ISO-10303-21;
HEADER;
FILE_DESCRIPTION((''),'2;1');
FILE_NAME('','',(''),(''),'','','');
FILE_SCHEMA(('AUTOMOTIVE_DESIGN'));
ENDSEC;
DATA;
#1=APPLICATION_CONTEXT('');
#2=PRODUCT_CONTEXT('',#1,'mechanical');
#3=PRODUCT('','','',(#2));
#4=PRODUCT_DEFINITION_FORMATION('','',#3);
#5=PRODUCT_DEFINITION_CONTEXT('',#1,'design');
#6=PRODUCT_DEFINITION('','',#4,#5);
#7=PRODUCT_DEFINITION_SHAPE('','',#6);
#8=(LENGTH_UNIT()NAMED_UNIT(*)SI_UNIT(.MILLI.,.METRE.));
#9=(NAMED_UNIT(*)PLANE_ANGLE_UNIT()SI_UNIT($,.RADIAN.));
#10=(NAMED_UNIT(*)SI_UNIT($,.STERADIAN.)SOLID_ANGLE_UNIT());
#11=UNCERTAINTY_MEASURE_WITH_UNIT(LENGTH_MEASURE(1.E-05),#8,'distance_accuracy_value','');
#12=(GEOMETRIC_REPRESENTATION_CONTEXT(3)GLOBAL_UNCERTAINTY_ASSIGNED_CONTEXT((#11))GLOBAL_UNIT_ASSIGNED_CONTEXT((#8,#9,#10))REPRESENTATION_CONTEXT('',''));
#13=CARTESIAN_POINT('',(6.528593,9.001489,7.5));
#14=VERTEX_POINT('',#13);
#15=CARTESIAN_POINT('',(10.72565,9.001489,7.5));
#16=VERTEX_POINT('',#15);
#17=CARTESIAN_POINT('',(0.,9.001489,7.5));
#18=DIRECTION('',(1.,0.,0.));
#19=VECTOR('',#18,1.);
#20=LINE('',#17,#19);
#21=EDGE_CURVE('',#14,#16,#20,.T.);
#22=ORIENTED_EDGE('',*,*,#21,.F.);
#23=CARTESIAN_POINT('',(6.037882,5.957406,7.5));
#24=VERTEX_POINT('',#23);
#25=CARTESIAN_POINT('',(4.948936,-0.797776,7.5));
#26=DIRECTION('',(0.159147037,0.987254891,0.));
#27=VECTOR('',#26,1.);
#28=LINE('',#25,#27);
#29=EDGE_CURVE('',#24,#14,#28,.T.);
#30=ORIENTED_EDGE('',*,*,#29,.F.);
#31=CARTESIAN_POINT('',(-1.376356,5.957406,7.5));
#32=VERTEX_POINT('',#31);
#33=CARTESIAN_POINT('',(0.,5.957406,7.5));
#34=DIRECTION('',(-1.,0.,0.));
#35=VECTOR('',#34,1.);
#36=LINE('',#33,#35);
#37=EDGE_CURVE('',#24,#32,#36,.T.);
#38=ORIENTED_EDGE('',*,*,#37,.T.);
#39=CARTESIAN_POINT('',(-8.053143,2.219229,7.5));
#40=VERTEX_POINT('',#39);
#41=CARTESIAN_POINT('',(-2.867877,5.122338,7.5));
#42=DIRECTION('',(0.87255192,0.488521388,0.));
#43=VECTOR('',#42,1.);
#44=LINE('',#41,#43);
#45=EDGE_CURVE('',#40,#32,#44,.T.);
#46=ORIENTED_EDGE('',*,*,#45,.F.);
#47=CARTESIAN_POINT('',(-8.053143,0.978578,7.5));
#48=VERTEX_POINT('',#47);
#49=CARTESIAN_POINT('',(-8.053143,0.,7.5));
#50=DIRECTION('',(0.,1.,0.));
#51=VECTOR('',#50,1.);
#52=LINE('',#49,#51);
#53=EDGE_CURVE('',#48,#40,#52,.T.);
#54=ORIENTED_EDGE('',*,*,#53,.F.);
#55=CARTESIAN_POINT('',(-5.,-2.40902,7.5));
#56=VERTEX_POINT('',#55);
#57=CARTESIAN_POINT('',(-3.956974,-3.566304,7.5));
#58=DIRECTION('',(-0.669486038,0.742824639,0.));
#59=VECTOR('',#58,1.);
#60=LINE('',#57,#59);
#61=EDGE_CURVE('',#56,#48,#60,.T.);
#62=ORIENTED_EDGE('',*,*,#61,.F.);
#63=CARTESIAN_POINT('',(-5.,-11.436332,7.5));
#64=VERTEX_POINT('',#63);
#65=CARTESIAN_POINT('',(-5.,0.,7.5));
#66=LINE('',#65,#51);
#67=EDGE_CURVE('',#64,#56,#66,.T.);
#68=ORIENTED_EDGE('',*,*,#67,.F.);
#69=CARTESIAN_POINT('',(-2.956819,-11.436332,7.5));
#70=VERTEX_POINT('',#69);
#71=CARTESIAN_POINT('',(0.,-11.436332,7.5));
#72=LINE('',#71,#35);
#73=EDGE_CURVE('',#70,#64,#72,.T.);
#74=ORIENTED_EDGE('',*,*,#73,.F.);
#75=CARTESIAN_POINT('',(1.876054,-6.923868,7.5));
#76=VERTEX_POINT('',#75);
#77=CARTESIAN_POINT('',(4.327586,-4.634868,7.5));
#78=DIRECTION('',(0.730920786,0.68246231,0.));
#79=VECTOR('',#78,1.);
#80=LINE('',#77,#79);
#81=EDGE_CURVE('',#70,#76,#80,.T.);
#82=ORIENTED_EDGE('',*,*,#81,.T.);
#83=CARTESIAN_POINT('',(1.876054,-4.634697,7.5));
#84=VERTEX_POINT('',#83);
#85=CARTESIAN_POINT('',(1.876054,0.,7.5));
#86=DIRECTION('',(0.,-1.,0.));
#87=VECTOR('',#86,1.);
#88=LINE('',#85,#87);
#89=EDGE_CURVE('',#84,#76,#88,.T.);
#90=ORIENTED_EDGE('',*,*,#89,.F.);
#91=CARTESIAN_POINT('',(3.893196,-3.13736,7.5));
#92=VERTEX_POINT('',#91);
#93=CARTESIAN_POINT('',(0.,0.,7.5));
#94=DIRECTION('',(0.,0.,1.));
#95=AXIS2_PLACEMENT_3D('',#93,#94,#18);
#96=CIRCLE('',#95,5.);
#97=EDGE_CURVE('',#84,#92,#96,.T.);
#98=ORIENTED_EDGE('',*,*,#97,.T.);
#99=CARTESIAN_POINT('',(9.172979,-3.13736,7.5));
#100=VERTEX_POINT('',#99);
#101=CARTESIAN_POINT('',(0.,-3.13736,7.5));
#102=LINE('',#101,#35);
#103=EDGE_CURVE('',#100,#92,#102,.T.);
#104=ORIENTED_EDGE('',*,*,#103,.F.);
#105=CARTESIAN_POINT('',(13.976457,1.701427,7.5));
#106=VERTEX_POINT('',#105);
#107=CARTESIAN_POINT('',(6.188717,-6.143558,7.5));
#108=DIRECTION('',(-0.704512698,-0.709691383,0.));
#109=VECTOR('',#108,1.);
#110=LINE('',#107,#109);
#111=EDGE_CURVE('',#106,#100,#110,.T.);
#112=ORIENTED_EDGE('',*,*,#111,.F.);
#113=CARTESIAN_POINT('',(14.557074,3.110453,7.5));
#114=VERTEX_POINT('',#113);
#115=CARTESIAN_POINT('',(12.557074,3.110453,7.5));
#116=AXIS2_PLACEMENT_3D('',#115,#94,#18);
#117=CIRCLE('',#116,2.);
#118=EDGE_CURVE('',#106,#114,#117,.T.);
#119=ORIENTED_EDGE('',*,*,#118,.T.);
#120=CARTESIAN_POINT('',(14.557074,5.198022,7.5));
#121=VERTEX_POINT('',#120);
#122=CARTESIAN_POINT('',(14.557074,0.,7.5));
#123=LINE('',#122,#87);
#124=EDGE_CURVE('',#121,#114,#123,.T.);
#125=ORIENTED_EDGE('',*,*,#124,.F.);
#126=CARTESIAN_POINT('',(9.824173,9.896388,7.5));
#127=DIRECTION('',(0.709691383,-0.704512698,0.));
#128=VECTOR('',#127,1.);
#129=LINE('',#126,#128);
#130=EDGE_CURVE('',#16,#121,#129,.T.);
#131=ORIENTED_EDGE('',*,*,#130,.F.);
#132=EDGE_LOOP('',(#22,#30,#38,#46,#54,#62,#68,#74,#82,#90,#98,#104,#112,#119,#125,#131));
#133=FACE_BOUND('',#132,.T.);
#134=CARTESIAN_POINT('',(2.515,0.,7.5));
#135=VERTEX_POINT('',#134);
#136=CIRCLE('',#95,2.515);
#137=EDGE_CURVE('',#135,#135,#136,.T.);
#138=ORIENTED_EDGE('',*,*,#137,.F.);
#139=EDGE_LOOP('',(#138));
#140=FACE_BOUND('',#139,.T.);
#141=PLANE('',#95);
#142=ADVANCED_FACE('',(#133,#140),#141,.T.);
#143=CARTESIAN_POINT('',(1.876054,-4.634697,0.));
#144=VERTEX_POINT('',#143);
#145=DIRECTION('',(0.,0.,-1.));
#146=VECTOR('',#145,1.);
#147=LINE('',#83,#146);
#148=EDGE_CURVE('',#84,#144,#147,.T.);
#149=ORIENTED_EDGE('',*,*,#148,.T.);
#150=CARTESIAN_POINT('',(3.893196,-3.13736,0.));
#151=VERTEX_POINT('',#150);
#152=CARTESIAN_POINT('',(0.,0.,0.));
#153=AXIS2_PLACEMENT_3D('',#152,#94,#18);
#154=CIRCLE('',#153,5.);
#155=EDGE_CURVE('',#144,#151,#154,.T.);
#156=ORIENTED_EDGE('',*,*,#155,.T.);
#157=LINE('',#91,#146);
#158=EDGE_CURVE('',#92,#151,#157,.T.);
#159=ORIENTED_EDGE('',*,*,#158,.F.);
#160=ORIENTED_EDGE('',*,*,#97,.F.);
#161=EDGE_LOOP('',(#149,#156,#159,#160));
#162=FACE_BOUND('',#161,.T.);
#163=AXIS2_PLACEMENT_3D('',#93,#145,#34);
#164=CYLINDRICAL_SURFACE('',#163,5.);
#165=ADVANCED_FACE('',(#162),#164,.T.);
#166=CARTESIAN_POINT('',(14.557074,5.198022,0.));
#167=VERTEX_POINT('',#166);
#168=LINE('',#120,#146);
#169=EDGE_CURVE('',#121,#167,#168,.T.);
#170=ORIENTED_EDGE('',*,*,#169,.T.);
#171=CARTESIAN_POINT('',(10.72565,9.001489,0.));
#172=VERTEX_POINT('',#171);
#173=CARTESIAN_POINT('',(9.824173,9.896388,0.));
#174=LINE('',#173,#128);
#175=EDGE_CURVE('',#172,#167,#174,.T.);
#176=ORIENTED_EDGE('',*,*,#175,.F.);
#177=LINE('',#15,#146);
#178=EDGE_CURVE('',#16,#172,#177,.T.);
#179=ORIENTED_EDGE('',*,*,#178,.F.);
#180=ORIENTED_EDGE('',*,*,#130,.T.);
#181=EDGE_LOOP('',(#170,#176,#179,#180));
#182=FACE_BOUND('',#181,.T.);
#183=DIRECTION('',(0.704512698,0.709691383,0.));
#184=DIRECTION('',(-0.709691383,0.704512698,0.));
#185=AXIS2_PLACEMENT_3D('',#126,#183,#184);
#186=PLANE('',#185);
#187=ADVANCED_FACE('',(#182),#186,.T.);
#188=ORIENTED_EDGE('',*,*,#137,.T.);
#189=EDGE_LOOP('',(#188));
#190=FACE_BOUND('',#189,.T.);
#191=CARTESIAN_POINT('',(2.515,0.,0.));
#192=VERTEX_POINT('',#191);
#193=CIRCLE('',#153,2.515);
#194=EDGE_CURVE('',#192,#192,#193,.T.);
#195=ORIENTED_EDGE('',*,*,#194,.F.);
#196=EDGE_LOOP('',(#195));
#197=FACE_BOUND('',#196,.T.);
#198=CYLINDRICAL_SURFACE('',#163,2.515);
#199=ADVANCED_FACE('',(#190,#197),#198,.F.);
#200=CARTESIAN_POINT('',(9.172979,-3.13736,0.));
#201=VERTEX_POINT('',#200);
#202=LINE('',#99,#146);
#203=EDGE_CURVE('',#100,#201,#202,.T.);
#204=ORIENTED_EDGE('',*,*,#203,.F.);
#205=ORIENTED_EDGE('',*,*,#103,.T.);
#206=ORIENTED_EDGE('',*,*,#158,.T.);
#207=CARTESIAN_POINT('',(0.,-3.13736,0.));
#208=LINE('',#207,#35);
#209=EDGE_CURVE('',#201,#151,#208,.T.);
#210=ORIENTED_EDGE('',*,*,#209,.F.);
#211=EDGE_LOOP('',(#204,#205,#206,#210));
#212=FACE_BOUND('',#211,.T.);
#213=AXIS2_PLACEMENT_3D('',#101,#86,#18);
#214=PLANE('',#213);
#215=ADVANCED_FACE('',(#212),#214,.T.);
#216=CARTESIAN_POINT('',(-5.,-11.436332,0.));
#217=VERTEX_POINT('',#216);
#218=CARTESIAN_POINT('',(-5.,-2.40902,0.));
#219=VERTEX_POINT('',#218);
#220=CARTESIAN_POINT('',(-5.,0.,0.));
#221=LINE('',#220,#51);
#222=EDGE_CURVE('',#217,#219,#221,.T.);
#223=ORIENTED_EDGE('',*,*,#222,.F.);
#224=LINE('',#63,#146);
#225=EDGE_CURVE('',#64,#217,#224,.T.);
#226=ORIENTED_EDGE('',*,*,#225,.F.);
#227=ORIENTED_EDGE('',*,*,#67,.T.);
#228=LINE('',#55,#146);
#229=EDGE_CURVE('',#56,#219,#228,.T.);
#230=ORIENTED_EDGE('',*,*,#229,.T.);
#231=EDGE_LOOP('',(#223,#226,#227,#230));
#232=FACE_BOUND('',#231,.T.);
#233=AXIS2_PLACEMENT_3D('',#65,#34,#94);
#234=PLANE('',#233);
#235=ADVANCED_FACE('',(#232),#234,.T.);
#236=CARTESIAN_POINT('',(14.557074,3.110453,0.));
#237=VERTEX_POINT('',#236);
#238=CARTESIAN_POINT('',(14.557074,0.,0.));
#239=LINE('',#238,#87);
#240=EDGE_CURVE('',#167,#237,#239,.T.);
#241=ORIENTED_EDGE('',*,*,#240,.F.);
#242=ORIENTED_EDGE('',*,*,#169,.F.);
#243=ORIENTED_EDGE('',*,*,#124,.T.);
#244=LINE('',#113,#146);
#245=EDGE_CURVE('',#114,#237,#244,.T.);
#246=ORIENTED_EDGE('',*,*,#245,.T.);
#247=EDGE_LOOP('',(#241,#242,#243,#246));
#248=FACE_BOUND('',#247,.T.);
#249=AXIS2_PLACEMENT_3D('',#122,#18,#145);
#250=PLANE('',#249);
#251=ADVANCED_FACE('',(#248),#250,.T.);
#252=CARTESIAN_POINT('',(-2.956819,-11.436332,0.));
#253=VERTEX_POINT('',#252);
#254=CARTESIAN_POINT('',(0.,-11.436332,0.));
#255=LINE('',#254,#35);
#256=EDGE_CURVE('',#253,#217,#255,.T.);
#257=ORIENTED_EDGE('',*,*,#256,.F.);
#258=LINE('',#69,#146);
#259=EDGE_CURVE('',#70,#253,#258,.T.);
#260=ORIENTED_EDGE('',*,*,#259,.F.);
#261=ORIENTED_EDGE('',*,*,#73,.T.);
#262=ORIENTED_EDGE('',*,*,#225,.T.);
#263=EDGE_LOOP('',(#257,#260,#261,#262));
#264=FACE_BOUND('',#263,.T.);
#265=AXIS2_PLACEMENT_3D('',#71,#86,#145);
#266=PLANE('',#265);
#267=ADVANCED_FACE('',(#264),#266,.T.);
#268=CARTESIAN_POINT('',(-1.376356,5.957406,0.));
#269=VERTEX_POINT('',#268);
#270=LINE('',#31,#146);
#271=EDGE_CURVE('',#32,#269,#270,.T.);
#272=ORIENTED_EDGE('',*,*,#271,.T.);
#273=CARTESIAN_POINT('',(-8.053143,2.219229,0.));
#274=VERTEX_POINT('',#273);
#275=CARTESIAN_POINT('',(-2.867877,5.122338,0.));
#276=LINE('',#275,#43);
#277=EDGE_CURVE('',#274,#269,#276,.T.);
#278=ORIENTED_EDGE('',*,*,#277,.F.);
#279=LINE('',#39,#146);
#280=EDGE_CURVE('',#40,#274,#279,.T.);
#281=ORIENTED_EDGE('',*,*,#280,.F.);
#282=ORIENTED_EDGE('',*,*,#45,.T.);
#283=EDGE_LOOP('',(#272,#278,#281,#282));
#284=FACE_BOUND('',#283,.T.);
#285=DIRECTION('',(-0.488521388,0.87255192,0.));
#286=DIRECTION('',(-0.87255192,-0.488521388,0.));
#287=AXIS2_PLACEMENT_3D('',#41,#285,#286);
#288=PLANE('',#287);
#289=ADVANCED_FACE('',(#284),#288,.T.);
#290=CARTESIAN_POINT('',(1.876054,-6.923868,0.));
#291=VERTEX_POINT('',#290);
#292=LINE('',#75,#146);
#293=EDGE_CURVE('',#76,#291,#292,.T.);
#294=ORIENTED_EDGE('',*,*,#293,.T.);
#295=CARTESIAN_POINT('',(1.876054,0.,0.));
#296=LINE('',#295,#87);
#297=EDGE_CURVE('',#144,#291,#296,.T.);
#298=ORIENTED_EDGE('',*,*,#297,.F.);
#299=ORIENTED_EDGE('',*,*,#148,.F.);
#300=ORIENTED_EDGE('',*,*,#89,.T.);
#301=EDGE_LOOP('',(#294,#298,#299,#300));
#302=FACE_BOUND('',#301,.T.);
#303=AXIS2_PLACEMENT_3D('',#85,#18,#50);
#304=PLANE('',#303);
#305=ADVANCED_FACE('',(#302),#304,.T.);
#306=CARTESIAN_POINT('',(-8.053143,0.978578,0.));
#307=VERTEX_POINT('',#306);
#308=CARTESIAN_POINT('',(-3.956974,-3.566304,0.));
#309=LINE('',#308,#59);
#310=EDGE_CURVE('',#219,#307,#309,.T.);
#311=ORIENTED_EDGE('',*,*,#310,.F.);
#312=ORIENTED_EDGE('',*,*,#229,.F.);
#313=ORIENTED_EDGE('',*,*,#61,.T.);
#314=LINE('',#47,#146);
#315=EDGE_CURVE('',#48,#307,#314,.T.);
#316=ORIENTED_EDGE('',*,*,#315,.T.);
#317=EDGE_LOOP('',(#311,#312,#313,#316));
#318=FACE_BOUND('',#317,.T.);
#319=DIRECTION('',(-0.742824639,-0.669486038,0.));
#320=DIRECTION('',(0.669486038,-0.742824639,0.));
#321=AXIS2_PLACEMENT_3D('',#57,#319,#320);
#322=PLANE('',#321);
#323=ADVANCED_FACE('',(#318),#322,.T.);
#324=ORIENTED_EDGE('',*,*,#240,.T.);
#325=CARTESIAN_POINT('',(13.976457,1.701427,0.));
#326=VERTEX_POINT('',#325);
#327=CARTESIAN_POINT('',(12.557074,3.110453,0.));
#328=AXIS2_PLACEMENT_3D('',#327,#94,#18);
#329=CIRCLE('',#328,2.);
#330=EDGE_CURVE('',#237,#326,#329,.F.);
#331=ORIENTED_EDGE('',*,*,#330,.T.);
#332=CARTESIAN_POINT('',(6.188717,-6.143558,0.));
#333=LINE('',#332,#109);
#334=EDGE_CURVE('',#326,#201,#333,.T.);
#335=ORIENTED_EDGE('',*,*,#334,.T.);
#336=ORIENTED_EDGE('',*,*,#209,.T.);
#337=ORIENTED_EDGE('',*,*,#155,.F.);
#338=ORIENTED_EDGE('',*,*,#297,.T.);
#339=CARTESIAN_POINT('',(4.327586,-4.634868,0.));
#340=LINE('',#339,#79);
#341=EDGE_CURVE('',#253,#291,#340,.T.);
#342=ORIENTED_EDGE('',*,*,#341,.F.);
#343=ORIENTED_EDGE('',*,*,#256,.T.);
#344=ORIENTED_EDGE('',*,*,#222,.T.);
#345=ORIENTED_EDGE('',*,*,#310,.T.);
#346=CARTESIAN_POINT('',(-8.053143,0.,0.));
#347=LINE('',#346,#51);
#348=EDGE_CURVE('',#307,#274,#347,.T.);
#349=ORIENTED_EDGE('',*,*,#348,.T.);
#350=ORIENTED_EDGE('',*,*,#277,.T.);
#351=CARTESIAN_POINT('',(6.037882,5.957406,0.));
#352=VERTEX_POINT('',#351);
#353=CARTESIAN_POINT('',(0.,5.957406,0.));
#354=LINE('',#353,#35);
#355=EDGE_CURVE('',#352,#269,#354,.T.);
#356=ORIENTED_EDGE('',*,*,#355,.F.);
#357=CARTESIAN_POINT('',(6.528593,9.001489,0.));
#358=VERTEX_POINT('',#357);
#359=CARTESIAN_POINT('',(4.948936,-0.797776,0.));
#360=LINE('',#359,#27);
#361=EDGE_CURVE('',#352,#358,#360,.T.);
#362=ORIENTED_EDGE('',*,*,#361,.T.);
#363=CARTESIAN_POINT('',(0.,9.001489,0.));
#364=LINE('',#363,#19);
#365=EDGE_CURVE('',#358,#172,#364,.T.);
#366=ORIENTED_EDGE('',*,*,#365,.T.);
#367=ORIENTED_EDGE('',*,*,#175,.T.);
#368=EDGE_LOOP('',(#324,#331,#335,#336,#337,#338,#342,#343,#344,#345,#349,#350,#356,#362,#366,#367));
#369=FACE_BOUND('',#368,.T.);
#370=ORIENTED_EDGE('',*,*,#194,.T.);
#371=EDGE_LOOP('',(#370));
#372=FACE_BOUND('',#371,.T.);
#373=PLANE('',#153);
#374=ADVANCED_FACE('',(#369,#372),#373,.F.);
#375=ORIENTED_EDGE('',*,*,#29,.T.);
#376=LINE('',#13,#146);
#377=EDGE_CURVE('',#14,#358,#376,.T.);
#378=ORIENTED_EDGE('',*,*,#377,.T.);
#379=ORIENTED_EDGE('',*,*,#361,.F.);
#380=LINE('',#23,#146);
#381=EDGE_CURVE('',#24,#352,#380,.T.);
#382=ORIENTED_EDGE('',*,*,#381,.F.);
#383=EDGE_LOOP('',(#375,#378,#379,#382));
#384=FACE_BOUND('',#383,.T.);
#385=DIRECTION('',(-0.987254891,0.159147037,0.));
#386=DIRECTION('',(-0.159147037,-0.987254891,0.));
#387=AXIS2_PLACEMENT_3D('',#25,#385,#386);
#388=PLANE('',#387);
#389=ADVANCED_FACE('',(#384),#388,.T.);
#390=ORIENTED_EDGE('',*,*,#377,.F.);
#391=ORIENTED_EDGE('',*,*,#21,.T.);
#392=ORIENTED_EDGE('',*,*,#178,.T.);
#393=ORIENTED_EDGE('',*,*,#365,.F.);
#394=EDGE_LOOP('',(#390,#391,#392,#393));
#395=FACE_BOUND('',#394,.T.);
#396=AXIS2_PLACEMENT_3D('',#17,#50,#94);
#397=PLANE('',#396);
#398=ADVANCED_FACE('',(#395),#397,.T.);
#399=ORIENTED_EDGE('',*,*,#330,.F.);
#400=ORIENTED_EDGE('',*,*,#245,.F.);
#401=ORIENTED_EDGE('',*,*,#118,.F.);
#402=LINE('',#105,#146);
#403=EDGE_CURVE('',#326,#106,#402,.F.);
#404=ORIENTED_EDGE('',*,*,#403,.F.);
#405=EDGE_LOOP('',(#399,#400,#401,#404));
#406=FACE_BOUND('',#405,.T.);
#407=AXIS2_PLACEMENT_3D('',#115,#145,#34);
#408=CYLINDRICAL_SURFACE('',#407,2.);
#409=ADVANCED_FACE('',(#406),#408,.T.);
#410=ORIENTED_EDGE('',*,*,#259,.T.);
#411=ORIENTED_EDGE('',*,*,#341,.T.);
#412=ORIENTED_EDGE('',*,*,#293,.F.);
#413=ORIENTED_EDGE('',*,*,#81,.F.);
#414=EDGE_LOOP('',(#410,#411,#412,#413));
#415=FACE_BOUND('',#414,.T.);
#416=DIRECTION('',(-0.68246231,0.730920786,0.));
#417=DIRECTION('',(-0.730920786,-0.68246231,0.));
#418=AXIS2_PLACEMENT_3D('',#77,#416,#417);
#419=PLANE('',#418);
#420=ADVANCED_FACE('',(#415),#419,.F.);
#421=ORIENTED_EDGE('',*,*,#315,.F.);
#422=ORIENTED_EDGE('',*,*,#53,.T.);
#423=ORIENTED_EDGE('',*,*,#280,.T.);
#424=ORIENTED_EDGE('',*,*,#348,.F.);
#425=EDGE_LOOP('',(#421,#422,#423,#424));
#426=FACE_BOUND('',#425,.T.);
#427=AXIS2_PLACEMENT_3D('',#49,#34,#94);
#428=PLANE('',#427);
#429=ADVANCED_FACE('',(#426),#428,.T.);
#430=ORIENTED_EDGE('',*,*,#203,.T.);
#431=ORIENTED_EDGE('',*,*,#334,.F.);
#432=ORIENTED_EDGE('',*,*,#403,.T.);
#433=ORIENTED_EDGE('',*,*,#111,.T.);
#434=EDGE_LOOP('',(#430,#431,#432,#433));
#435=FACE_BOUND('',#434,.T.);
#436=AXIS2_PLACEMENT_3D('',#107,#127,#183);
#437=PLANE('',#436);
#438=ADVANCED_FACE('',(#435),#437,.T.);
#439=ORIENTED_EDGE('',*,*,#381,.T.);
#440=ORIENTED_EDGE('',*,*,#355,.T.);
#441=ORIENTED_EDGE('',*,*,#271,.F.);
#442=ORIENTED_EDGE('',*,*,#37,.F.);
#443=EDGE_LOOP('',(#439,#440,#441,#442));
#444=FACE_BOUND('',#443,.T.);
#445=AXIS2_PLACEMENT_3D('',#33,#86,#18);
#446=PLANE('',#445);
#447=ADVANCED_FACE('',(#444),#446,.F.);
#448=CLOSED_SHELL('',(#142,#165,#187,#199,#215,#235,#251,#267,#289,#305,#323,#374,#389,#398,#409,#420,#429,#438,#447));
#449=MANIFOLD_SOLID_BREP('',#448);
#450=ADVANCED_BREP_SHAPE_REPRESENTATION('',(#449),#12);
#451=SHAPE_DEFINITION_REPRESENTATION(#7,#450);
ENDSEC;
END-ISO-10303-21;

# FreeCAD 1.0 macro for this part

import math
import FreeCAD as App
import Part
import Sketcher


def edges_at(feature, points):
    """Names of the edges that pass closest to the given points."""
    edges = feature.Shape.Edges
    near = lambda p: min(range(len(edges)), key=lambda i: edges[i].distToShape(Part.Vertex(*p))[0])
    return sorted({f"Edge{near(p) + 1}" for p in points})

doc = App.newDocument("Part")
params = doc.addObject("Spreadsheet::Sheet", "Params")
for row, (alias, value) in enumerate([
    ("sketch1_radius", "5 mm"),
    ("sketch1_diameter", "5.03 mm"),
    ("pad1_length", "7.5 mm"),
    ("fillet_radius", "2 mm"),
], start=1):
    params.set(f"A{row}", alias)
    params.set(f"B{row}", "=" + value)
    params.setAlias(f"B{row}", alias)

body = doc.addObject("PartDesign::Body", "Body")

# Sketch on XY plane
sketch1 = body.newObject("Sketcher::SketchObject", "Sketch")
sketch1.AttachmentSupport = (doc.getObject("XY_Plane"), [""])
sketch1.MapMode = "FlatFace"
sketch1.addGeometry([
    Part.LineSegment(App.Vector(-8.1, 1, 0), App.Vector(-5, -2.4, 0)),  # 0
    Part.LineSegment(App.Vector(-5, -2.4, 0), App.Vector(-5, -11.4, 0)),  # 1
    Part.LineSegment(App.Vector(-5, -11.4, 0), App.Vector(-3, -11.4, 0)),  # 2
    Part.LineSegment(App.Vector(-3, -11.4, 0), App.Vector(1.9, -6.9, 0)),  # 3
    Part.LineSegment(App.Vector(1.9, -6.9, 0), App.Vector(1.9, -4.6, 0)),  # 4
    Part.ArcOfCircle(Part.Circle(App.Vector(0, 0, 0), App.Vector(0, 0, 1), 5), math.radians(-68), math.radians(-39)),  # 5
    Part.LineSegment(App.Vector(3.9, -3.1, 0), App.Vector(9.2, -3.1, 0)),  # 6
    Part.LineSegment(App.Vector(9.2, -3.1, 0), App.Vector(14.6, 2.3, 0)),  # 7
    Part.LineSegment(App.Vector(14.6, 2.3, 0), App.Vector(14.6, 5.2, 0)),  # 8
    Part.LineSegment(App.Vector(14.6, 5.2, 0), App.Vector(10.7, 9, 0)),  # 9
    Part.LineSegment(App.Vector(10.7, 9, 0), App.Vector(6.5, 9, 0)),  # 10
    Part.LineSegment(App.Vector(6.5, 9, 0), App.Vector(6, 6, 0)),  # 11
    Part.LineSegment(App.Vector(6, 6, 0), App.Vector(-1.4, 6, 0)),  # 12
    Part.LineSegment(App.Vector(-1.4, 6, 0), App.Vector(-8.1, 2.2, 0)),  # 13
    Part.LineSegment(App.Vector(-8.1, 2.2, 0), App.Vector(-8.1, 1, 0)),  # 14
    Part.Circle(App.Vector(0, 0, 0), App.Vector(0, 0, 1), 2.5),  # 15
], False)
sketch1.addConstraint([
    Sketcher.Constraint("Coincident", 0, 2, 1, 1),
    Sketcher.Constraint("Coincident", 1, 2, 2, 1),
    Sketcher.Constraint("Coincident", 2, 2, 3, 1),
    Sketcher.Constraint("Coincident", 3, 2, 4, 1),
    Sketcher.Constraint("Coincident", 4, 2, 5, 1),
    Sketcher.Constraint("Coincident", 5, 2, 6, 1),
    Sketcher.Constraint("Coincident", 6, 2, 7, 1),
    Sketcher.Constraint("Coincident", 7, 2, 8, 1),
    Sketcher.Constraint("Coincident", 8, 2, 9, 1),
    Sketcher.Constraint("Coincident", 9, 2, 10, 1),
    Sketcher.Constraint("Coincident", 10, 2, 11, 1),
    Sketcher.Constraint("Coincident", 11, 2, 12, 1),
    Sketcher.Constraint("Coincident", 12, 2, 13, 1),
    Sketcher.Constraint("Coincident", 13, 2, 14, 1),
    Sketcher.Constraint("Coincident", 14, 2, 0, 1),
    Sketcher.Constraint("Vertical", 1),
    Sketcher.Constraint("Horizontal", 2),
    Sketcher.Constraint("Vertical", 4),
    Sketcher.Constraint("Horizontal", 6),
    Sketcher.Constraint("Vertical", 8),
    Sketcher.Constraint("Horizontal", 10),
    Sketcher.Constraint("Horizontal", 12),
    Sketcher.Constraint("Vertical", 14),
    Sketcher.Constraint("Coincident", 5, 3, -1, 1),
    Sketcher.Constraint("Coincident", 15, 3, -1, 1),
    Sketcher.Constraint("Perpendicular", 7, 9),
    Sketcher.Constraint("Radius", 5, 5.0),
    Sketcher.Constraint("Diameter", 15, 5.03),
    Sketcher.Constraint("DistanceX", 0, 2, -1, 1, 5.0),
    Sketcher.Constraint("DistanceX", 2, 1, 2, 2, 2.043181),
    Sketcher.Constraint("DistanceY", 4, 1, 4, 2, 2.28917),
    Sketcher.Constraint("DistanceY", 8, 1, 8, 2, 2.91171),
    Sketcher.Constraint("DistanceY", 14, 2, 14, 1, 1.240651),
    Sketcher.Constraint("DistanceY", 0, 2, 14, 2, 3.387598),
    Sketcher.Constraint("Distance", 0, 4.560428),
    Sketcher.Constraint("Distance", 9, 5.398719),
    Sketcher.Constraint("Distance", 11, 3.08338),
    Sketcher.Constraint("DistanceX", 6, 1, 6, 2, 5.279783),
    Sketcher.Constraint("DistanceX", 10, 2, 10, 1, 4.197057),
    Sketcher.Constraint("DistanceX", 12, 2, 12, 1, 7.414238),
    Sketcher.Constraint("DistanceY", 1, 2, 1, 1, 9.027312),
    Sketcher.Constraint("DistanceY", 0, 2, -1, 1, 2.40902),
    Sketcher.Constraint("DistanceY", 5, 2, -1, 1, 3.13736),
    Sketcher.Constraint("DistanceX", -1, 1, 9, 2, 10.72565),
    Sketcher.Constraint("DistanceY", -1, 1, 9, 2, 9.001489),
    Sketcher.Constraint("DistanceX", 4, 2, 5, 2, 2.017141),
    Sketcher.Constraint("DistanceX", 11, 2, 10, 2, 0.490711),
])
sketch1.setExpression("Constraints[26]", "Params.sketch1_radius")
sketch1.setExpression("Constraints[27]", "Params.sketch1_diameter")
pad1 = body.newObject("PartDesign::Pad", "Pad")
pad1.Profile = sketch1
pad1.setExpression("Length", "Params.pad1_length")
doc.recompute()

fillet = body.newObject("PartDesign::Fillet", "Fillet")
fillet.Base = (pad1, edges_at(pad1, [(14.557, 2.286, 3.75)]))
fillet.setExpression("Radius", "Params.fillet_radius")

doc.recompute()
